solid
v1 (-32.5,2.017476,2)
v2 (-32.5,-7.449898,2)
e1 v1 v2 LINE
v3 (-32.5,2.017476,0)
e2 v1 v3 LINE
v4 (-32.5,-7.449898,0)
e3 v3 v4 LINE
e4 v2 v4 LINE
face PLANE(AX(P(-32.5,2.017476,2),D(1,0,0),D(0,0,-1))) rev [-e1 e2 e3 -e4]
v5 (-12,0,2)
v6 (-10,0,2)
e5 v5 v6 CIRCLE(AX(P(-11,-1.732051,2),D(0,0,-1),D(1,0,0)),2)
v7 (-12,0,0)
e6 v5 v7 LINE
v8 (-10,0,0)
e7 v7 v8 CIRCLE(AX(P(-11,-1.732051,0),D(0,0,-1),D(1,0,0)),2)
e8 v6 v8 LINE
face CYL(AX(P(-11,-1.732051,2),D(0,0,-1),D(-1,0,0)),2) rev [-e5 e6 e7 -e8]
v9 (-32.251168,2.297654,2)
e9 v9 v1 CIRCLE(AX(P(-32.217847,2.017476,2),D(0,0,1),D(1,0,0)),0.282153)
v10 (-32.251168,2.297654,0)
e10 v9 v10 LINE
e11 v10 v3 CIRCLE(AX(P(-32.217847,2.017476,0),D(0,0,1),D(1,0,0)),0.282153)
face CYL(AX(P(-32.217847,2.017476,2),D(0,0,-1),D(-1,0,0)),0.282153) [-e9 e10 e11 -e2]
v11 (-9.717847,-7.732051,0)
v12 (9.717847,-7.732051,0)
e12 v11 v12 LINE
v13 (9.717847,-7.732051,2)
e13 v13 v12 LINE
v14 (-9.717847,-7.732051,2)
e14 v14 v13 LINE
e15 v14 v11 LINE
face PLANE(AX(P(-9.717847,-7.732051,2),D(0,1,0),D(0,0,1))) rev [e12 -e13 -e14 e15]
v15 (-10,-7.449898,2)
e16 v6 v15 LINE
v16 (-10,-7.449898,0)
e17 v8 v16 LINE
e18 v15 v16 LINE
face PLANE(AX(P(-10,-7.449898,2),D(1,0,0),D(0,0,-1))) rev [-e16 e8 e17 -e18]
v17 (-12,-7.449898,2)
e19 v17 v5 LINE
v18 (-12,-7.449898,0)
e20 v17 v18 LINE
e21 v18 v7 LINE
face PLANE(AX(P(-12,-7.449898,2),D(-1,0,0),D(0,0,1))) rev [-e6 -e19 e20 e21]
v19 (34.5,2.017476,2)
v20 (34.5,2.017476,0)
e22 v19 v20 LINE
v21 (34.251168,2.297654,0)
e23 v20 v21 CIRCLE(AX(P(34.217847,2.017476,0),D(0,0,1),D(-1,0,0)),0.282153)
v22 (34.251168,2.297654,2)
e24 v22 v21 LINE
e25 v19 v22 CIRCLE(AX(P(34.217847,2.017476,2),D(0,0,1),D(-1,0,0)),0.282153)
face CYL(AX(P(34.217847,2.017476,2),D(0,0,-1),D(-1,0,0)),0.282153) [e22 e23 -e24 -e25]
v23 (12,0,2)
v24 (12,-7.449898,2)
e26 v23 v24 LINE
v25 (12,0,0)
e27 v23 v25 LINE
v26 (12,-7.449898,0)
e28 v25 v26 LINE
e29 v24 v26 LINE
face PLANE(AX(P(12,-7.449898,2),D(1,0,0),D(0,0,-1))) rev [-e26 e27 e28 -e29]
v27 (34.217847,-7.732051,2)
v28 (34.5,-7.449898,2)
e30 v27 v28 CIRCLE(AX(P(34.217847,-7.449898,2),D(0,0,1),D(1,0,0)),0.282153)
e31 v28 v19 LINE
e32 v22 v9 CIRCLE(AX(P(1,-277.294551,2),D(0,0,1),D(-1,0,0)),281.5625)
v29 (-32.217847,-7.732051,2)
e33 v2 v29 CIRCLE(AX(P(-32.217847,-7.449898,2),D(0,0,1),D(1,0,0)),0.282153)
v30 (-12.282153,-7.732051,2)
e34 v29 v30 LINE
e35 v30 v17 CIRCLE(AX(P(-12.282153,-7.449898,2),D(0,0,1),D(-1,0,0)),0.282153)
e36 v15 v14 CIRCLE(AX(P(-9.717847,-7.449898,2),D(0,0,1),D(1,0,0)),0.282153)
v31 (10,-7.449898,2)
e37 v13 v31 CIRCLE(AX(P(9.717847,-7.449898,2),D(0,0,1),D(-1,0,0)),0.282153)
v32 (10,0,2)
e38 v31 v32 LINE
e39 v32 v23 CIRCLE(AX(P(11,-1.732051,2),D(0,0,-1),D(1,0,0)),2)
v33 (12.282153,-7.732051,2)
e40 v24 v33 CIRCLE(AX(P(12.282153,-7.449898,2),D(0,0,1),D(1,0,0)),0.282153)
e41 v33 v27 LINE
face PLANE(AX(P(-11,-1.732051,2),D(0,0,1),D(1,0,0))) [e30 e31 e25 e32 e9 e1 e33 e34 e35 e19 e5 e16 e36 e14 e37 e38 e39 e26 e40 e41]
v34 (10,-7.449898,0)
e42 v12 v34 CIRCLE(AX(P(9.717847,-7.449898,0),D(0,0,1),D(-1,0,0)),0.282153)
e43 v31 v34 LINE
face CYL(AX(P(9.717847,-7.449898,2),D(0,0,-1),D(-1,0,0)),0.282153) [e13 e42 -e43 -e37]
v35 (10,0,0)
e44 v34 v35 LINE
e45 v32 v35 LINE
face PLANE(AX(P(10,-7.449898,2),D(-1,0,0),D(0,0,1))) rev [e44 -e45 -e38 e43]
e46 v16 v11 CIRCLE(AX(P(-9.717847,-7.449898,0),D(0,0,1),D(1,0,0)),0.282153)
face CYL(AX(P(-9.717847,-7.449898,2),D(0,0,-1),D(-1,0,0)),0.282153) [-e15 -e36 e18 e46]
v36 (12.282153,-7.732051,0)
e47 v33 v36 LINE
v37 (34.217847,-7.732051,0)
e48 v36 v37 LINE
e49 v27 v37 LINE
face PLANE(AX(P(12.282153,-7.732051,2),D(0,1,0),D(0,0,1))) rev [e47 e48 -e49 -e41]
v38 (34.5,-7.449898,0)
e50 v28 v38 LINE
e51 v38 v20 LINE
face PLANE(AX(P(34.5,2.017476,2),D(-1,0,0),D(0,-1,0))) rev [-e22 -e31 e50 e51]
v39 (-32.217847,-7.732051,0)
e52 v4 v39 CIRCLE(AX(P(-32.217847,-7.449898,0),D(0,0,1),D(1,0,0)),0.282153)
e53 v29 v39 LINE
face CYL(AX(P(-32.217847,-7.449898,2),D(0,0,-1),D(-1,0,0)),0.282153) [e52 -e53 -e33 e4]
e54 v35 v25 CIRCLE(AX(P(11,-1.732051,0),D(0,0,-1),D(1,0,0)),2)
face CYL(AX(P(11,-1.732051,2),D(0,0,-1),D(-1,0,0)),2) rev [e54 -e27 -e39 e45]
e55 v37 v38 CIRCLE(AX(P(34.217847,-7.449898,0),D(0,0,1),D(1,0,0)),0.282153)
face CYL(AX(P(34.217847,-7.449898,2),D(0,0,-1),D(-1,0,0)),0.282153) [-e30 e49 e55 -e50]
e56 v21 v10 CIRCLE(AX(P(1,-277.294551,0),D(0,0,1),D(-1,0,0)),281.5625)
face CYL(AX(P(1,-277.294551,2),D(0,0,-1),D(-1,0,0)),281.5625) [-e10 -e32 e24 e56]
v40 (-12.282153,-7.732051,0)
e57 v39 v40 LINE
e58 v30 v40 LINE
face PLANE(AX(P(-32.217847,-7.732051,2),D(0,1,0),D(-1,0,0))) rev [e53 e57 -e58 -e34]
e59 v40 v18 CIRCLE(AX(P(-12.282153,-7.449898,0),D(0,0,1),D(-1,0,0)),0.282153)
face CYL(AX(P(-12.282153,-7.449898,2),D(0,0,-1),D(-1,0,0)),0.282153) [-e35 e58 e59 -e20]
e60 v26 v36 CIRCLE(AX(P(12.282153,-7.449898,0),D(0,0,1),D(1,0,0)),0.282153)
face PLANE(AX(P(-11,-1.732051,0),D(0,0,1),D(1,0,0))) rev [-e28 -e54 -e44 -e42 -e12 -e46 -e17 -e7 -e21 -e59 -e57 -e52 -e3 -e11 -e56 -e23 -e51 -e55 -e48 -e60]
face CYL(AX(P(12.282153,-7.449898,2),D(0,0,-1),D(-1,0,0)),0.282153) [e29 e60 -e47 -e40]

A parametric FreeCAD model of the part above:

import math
import FreeCAD as App
import Part
import Sketcher
from FreeCAD import Vector

doc = App.newDocument("Part")
body = doc.addObject("PartDesign::Body", "Body")

sketch1 = body.newObject("Sketcher::SketchObject", "Sketch")
sketch1.AttachmentSupport = (doc.getObject("XY_Plane"), [""])
sketch1.MapMode = "FlatFace"
sketch1.addGeometry([
    Part.LineSegment(Vector(-9.72, -7.73, 0), Vector(9.72, -7.73, 0)),
    Part.ArcOfCircle(Part.Circle(Vector(9.72, -7.45, 0), Vector(0, 0, 1), 0.28), math.radians(-90), math.radians(0)),
    Part.LineSegment(Vector(10, -7.45, 0), Vector(10, 0, 0)),
    Part.ArcOfCircle(Part.Circle(Vector(11, -1.73, 0), Vector(0, 0, 1), 2), math.radians(60), math.radians(120)),
    Part.LineSegment(Vector(12, 0, 0), Vector(12, -7.45, 0)),
    Part.ArcOfCircle(Part.Circle(Vector(12.28, -7.45, 0), Vector(0, 0, 1), 0.28), math.radians(-180), math.radians(-90)),
    Part.LineSegment(Vector(12.28, -7.73, 0), Vector(34.22, -7.73, 0)),
    Part.ArcOfCircle(Part.Circle(Vector(34.22, -7.45, 0), Vector(0, 0, 1), 0.28), math.radians(-90), math.radians(0)),
    Part.LineSegment(Vector(34.5, -7.45, 0), Vector(34.5, 2.02, 0)),
    Part.ArcOfCircle(Part.Circle(Vector(34.22, 2.02, 0), Vector(0, 0, 1), 0.28), math.radians(0), math.radians(83)),
    Part.ArcOfCircle(Part.Circle(Vector(1, -277.29, 0), Vector(0, 0, 1), 281.56), math.radians(83.22), math.radians(96.78)),
    Part.ArcOfCircle(Part.Circle(Vector(-32.22, 2.02, 0), Vector(0, 0, 1), 0.28), math.radians(97), math.radians(180)),
    Part.LineSegment(Vector(-32.5, 2.02, 0), Vector(-32.5, -7.45, 0)),
    Part.ArcOfCircle(Part.Circle(Vector(-32.22, -7.45, 0), Vector(0, 0, 1), 0.28), math.radians(-180), math.radians(-90)),
    Part.LineSegment(Vector(-32.22, -7.73, 0), Vector(-12.28, -7.73, 0)),
    Part.ArcOfCircle(Part.Circle(Vector(-12.28, -7.45, 0), Vector(0, 0, 1), 0.28), math.radians(-90), math.radians(0)),
    Part.LineSegment(Vector(-12, -7.45, 0), Vector(-12, 0, 0)),
    Part.ArcOfCircle(Part.Circle(Vector(-11, -1.73, 0), Vector(0, 0, 1), 2), math.radians(60), math.radians(120)),
    Part.LineSegment(Vector(-10, 0, 0), Vector(-10, -7.45, 0)),
    Part.ArcOfCircle(Part.Circle(Vector(-9.72, -7.45, 0), Vector(0, 0, 1), 0.28), math.radians(-180), math.radians(-90)),
], False)
sketch1.addConstraint([
    Sketcher.Constraint("Tangent", 0, 2, 1, 1),
    Sketcher.Constraint("Tangent", 1, 2, 2, 1),
    Sketcher.Constraint("Coincident", 2, 2, 3, 2),
    Sketcher.Constraint("Coincident", 3, 1, 4, 1),
    Sketcher.Constraint("Tangent", 4, 2, 5, 1),
    Sketcher.Constraint("Tangent", 5, 2, 6, 1),
    Sketcher.Constraint("Tangent", 6, 2, 7, 1),
    Sketcher.Constraint("Tangent", 7, 2, 8, 1),
    Sketcher.Constraint("Tangent", 8, 2, 9, 1),
    Sketcher.Constraint("Tangent", 9, 2, 10, 1),
    Sketcher.Constraint("Tangent", 10, 2, 11, 1),
    Sketcher.Constraint("Tangent", 11, 2, 12, 1),
    Sketcher.Constraint("Tangent", 12, 2, 13, 1),
    Sketcher.Constraint("Tangent", 13, 2, 14, 1),
    Sketcher.Constraint("Tangent", 14, 2, 15, 1),
    Sketcher.Constraint("Tangent", 15, 2, 16, 1),
    Sketcher.Constraint("Coincident", 16, 2, 17, 2),
    Sketcher.Constraint("Coincident", 17, 1, 18, 1),
    Sketcher.Constraint("Tangent", 18, 2, 19, 1),
    Sketcher.Constraint("Tangent", 19, 2, 0, 1),
    Sketcher.Constraint("Horizontal", 0),
    Sketcher.Constraint("Vertical", 2),
    Sketcher.Constraint("Vertical", 4),
    Sketcher.Constraint("Horizontal", 6),
    Sketcher.Constraint("Vertical", 8),
    Sketcher.Constraint("Vertical", 12),
    Sketcher.Constraint("Horizontal", 14),
    Sketcher.Constraint("Vertical", 16),
    Sketcher.Constraint("Vertical", 18),
    Sketcher.Constraint("Equal", 1, 5),
    Sketcher.Constraint("Equal", 5, 7),
    Sketcher.Constraint("Equal", 7, 9),
    Sketcher.Constraint("Equal", 9, 11),
    Sketcher.Constraint("Equal", 11, 13),
    Sketcher.Constraint("Equal", 13, 15),
    Sketcher.Constraint("Equal", 3, 17),
    Sketcher.Constraint("Equal", 15, 19),
    Sketcher.Constraint("Symmetric", 3, 1, 16, 2, -1, 1),
    Sketcher.Constraint("Symmetric", 2, 2, 17, 1, -1, 1),
    Sketcher.Constraint("Symmetric", 3, 3, 17, 3, -2),
    Sketcher.Constraint("Horizontal", 1, 3, 5, 3),
    Sketcher.Constraint("Horizontal", 9, 3, 11, 3),
    Sketcher.Constraint("Horizontal", 7, 3, 13, 3),
    Sketcher.Constraint("Radius", 3, 2.0),
    Sketcher.Constraint("DistanceX", -1, 1, 3, 3, 11.0),
    Sketcher.Constraint("DistanceX", -1, 1, 10, 3, 1.0),
    Sketcher.Constraint("DistanceX", -1, 1, 1, 2, 10.0),
    Sketcher.Constraint("DistanceY", 0, 2, 3, 3, 6.0),
    Sketcher.Constraint("DistanceX", -1, 1, 7, 2, 34.5),
    Sketcher.Constraint("Radius", 10, 281.5625),
    Sketcher.Constraint("DistanceY", 2, 1, 2, 2, 7.449898),
    Sketcher.Constraint("DistanceY", 10, 3, 3, 3, 275.5625),
])
pad1 = body.newObject("PartDesign::Pad", "Pad")
pad1.Profile = sketch1
pad1.Length = 2

doc.recompute()
